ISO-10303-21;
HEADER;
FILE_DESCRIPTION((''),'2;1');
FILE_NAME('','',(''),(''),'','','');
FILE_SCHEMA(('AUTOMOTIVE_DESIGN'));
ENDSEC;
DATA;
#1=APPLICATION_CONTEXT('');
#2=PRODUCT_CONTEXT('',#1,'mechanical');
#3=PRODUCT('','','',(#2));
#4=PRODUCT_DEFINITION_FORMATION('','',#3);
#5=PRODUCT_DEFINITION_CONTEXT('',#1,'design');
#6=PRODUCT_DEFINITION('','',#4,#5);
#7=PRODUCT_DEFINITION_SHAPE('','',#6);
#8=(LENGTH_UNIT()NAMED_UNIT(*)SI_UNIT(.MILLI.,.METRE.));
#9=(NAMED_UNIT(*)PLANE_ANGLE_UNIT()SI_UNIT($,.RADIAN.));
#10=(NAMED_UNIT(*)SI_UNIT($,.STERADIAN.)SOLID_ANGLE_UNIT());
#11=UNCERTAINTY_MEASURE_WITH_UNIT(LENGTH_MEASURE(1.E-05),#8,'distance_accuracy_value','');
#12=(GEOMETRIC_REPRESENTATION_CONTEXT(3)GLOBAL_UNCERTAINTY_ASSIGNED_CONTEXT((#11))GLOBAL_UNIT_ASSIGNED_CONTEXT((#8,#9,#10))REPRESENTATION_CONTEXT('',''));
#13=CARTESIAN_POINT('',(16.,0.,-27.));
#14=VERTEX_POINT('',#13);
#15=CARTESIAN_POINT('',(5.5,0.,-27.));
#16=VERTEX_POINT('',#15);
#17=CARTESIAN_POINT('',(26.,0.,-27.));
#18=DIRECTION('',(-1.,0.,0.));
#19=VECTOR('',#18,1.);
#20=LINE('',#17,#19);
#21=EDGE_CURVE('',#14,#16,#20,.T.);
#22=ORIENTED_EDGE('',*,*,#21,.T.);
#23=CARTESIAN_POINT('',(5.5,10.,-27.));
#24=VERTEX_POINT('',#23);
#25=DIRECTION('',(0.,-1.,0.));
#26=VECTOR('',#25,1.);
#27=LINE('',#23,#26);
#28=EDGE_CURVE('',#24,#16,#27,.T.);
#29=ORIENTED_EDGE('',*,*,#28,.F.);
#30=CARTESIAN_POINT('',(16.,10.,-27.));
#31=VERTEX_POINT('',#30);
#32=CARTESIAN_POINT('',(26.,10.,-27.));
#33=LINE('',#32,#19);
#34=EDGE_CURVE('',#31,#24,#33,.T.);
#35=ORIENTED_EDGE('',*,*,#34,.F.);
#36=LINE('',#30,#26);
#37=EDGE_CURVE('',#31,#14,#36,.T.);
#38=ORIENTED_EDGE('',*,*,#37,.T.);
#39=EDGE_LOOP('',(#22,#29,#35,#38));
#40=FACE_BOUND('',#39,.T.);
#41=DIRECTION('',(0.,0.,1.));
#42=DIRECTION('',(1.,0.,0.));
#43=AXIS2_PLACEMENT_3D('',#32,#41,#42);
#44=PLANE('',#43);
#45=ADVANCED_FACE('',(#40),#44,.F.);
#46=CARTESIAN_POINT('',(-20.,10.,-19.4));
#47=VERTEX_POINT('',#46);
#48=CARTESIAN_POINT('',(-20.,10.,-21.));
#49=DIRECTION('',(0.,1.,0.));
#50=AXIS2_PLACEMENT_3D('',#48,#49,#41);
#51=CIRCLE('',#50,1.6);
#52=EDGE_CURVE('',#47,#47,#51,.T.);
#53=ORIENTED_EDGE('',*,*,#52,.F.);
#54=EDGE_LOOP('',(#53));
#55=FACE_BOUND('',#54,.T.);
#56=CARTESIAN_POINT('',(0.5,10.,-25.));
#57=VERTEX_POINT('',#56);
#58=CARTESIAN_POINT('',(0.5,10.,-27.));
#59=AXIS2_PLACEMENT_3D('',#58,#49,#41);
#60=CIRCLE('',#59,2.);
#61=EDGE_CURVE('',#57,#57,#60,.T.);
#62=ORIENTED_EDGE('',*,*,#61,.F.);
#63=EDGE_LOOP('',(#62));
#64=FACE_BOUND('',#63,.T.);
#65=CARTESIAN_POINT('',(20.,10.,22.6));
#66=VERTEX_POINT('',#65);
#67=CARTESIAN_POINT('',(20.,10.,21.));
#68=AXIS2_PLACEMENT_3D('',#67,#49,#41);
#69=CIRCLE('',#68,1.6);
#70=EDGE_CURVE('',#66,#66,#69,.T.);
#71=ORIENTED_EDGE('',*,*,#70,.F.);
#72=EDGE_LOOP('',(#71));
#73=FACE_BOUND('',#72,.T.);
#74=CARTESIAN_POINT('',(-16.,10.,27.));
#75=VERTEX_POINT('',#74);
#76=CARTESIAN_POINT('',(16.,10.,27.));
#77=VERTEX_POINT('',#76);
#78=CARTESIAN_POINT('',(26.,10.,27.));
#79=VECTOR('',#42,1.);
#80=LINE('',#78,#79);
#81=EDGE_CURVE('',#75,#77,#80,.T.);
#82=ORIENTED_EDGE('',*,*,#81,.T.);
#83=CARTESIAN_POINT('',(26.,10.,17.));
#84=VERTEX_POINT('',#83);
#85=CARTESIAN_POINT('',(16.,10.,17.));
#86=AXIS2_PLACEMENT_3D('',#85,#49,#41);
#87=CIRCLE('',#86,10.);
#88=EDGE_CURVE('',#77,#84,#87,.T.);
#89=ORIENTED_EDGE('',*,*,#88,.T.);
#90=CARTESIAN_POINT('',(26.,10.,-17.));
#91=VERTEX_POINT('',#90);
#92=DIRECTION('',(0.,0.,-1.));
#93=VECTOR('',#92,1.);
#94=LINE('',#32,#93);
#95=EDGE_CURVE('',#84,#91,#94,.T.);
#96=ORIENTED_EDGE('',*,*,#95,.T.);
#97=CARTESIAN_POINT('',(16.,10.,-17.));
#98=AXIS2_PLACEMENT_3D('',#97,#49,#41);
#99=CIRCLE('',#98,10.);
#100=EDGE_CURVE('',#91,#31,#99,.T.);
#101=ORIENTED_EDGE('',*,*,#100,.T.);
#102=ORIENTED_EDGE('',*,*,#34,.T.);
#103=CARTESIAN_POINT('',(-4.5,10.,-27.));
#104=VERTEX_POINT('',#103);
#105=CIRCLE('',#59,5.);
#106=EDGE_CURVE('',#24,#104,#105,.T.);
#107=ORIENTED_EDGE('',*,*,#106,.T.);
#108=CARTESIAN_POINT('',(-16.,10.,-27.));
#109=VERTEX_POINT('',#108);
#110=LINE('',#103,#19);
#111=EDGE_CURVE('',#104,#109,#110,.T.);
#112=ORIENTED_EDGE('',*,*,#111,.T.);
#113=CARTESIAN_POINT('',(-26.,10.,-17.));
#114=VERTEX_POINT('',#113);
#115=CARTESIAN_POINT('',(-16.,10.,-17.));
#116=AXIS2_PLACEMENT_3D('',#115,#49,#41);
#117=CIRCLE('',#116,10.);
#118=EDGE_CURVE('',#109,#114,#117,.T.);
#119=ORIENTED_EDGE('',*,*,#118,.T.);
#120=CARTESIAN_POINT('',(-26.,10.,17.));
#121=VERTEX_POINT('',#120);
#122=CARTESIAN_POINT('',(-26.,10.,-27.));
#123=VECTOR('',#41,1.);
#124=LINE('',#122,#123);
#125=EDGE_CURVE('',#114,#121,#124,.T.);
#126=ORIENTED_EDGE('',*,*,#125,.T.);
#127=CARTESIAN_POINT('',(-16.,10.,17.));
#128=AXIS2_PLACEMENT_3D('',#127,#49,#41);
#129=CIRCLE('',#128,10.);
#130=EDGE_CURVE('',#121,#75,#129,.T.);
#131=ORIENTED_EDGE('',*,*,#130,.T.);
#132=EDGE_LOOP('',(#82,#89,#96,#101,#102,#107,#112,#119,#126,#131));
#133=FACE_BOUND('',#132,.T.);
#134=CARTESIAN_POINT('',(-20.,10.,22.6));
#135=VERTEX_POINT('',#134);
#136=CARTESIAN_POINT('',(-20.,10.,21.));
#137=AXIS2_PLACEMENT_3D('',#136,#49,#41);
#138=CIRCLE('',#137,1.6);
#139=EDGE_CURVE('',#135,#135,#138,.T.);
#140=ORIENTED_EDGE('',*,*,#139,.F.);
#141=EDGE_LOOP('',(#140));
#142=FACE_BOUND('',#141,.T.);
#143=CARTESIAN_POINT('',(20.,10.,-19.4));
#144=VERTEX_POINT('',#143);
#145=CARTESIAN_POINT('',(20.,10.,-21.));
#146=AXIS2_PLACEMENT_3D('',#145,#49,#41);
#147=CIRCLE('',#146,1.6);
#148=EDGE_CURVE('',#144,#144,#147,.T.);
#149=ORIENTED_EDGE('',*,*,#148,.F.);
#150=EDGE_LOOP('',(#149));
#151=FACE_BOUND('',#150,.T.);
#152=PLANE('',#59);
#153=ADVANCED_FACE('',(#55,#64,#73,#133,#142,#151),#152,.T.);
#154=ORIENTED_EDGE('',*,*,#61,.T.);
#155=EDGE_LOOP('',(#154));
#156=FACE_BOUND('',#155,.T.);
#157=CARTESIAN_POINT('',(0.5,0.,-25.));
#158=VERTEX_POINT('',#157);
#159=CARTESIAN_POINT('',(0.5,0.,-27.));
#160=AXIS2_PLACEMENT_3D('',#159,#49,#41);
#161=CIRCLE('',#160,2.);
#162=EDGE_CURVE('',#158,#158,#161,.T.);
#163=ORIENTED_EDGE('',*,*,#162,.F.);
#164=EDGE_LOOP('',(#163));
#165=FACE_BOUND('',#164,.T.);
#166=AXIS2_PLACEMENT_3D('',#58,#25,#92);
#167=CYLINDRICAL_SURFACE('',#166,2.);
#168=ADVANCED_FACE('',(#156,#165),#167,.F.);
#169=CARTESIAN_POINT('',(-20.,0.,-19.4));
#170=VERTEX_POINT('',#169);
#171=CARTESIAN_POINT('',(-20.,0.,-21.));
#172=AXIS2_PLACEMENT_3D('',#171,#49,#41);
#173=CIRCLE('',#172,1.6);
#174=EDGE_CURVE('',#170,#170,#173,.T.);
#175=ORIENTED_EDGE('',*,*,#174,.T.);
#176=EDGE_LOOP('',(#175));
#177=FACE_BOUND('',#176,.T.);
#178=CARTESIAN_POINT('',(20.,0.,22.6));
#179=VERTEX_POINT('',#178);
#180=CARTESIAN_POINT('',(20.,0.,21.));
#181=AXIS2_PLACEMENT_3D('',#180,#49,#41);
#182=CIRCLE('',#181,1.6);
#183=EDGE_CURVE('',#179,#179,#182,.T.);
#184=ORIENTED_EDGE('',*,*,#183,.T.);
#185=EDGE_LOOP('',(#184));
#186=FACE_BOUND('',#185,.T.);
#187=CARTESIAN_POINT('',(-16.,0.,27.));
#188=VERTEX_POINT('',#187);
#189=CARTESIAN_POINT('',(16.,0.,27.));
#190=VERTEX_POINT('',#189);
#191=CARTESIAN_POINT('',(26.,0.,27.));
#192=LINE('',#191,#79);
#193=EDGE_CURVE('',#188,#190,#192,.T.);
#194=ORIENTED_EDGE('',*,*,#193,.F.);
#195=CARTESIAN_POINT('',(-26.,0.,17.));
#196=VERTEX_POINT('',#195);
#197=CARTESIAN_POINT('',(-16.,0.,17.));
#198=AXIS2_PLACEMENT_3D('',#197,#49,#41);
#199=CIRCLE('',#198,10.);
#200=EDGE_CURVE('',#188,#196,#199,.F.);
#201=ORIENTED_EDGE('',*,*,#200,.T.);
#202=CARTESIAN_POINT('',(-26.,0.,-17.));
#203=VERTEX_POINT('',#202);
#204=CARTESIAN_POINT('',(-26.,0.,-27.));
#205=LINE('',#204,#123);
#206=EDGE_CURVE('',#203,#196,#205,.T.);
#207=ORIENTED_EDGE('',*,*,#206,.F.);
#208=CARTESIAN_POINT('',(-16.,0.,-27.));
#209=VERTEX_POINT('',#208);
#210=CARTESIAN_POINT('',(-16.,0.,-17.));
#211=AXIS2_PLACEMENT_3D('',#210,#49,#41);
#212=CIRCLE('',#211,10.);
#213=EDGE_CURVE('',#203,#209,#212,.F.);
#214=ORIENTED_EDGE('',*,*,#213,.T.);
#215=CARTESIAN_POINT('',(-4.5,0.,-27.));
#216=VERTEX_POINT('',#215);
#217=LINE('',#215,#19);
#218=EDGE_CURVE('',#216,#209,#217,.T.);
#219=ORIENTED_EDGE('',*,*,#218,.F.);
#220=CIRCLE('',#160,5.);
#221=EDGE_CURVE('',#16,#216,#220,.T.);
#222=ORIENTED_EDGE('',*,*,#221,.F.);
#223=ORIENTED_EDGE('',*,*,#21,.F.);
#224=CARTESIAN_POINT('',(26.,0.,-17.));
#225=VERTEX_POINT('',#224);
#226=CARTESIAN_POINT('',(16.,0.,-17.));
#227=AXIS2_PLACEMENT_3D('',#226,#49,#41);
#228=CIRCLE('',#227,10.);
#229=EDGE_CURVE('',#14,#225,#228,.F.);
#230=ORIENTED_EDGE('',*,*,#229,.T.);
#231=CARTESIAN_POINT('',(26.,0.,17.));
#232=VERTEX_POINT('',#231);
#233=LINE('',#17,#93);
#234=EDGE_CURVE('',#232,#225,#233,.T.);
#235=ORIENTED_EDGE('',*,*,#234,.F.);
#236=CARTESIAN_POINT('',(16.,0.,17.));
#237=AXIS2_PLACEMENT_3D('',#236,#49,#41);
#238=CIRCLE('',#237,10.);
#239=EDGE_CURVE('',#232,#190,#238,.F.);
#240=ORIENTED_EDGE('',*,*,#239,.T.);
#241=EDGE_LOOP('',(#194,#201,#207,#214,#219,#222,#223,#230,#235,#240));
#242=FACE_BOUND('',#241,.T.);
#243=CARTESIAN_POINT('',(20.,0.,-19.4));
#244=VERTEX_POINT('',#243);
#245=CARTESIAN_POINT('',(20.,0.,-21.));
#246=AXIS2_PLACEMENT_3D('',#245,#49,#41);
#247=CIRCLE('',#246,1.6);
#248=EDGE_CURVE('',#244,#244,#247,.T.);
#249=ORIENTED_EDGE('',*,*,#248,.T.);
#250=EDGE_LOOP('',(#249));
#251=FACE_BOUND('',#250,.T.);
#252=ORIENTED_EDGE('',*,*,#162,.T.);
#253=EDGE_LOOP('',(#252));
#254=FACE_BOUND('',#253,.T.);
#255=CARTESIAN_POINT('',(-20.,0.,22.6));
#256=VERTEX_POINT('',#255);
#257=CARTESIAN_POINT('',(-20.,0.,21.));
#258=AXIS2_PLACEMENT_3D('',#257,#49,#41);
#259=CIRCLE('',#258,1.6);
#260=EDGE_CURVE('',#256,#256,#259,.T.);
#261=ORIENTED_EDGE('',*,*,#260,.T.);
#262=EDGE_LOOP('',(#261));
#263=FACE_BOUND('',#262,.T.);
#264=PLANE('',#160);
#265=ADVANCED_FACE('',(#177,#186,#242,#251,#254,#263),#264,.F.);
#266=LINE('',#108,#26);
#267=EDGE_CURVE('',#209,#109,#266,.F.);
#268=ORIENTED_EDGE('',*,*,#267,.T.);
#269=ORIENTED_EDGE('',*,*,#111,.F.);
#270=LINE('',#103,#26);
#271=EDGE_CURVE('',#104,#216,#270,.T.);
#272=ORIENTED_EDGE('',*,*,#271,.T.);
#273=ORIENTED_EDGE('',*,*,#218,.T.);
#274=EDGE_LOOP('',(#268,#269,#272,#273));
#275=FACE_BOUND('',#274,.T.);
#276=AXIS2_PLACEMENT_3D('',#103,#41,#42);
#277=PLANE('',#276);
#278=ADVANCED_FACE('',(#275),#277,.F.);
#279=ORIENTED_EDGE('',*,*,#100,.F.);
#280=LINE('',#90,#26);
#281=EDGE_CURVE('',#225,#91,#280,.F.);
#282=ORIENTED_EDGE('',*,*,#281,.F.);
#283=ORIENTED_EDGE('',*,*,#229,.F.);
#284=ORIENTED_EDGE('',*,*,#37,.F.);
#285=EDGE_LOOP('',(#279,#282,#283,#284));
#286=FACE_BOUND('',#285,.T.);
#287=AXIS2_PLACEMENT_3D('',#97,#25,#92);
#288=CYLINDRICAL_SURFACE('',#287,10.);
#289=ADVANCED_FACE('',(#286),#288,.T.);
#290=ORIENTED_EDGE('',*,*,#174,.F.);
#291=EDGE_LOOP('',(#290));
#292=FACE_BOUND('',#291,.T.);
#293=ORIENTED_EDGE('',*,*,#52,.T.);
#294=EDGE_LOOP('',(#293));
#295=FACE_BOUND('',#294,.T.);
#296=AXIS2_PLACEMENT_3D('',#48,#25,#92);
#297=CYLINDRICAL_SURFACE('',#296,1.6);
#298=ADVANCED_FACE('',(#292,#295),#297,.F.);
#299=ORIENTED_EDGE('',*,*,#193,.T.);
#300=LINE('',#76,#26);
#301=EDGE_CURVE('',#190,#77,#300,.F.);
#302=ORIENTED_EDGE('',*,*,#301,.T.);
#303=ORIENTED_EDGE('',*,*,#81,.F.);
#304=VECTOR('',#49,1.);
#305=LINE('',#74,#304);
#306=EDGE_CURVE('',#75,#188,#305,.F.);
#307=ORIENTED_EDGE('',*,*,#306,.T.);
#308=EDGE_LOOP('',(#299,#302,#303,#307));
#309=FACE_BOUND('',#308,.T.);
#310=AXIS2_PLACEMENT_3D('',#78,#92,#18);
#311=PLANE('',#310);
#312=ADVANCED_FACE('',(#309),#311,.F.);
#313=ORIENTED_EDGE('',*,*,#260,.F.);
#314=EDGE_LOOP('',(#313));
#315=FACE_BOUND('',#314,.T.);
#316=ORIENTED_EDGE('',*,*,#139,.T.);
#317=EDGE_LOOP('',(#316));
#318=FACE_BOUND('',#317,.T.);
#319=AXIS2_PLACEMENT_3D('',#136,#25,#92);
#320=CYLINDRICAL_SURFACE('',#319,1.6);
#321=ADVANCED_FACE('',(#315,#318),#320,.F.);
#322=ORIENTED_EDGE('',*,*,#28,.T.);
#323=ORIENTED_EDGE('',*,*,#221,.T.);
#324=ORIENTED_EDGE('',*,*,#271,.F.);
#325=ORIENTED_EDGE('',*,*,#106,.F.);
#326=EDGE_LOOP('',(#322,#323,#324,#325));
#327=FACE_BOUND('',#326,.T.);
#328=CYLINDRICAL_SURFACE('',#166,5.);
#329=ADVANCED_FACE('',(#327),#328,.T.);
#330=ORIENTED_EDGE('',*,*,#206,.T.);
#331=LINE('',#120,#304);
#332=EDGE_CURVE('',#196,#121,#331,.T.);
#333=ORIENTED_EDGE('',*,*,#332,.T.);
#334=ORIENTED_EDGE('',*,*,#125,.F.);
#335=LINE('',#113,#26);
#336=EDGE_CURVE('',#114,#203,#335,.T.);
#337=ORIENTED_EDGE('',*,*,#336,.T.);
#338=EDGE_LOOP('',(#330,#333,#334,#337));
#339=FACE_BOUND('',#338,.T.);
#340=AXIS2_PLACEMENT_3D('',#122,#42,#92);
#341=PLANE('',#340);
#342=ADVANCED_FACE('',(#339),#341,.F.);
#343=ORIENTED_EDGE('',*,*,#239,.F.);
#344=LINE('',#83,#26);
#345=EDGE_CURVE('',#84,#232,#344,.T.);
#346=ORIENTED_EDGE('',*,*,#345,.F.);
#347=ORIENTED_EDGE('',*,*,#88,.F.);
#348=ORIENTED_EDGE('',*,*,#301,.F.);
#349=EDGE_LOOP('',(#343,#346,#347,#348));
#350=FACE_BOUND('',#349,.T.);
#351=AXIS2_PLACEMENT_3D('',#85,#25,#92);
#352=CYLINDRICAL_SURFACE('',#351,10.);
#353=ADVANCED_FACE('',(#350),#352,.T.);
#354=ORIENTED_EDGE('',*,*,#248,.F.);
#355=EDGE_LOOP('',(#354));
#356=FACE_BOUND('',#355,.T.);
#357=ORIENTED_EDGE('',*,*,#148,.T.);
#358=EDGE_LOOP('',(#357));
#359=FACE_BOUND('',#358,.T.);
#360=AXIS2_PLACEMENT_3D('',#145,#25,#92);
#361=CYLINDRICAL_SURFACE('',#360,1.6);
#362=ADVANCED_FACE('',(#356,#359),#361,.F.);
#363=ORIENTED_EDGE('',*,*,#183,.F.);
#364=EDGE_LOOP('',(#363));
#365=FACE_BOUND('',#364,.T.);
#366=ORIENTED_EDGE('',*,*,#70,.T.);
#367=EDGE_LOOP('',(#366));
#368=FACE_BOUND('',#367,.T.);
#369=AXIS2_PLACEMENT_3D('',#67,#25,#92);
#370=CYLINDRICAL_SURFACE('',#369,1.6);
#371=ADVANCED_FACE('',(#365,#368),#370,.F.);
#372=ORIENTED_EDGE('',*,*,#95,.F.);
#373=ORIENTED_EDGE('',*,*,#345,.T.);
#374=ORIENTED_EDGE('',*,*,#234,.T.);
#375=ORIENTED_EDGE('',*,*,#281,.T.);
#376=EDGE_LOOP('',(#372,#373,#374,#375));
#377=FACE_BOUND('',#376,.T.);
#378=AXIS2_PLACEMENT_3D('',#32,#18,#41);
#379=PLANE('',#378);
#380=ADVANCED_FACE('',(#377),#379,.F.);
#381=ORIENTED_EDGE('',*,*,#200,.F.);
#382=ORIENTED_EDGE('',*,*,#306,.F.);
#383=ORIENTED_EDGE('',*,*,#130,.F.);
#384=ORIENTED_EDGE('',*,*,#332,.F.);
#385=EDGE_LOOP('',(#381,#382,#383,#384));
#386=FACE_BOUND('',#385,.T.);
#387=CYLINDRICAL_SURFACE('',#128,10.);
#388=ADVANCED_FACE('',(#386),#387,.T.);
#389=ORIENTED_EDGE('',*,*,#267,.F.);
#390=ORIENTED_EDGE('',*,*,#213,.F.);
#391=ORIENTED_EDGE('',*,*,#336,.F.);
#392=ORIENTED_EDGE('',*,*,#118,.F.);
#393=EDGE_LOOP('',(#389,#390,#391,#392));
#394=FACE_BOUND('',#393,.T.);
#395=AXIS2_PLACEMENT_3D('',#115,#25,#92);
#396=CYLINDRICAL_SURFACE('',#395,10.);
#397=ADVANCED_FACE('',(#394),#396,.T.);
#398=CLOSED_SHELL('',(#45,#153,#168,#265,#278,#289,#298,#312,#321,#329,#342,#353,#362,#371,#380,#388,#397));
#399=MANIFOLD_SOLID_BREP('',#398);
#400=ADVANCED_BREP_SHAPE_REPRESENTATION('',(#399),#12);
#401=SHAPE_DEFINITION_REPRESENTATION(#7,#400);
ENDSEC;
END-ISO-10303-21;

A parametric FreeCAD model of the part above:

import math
import FreeCAD as App
import Part
import Sketcher
from FreeCAD import Vector


def edges_at(feature, points):
    """Names of the edges that pass closest to the given points."""
    edges = feature.Shape.Edges
    near = lambda p: min(range(len(edges)), key=lambda i: edges[i].distToShape(Part.Vertex(*p))[0])
    return sorted({f"Edge{near(p) + 1}" for p in points})

doc = App.newDocument("Part")
body = doc.addObject("PartDesign::Body", "Body")

# Sketch on XZ plane
sketch1 = body.newObject("Sketcher::SketchObject", "Sketch")
sketch1.AttachmentSupport = (doc.getObject("XZ_Plane"), [""])
sketch1.MapMode = "FlatFace"
sketch1.addGeometry([
    Part.LineSegment(Vector(-4.5, -27, 0), Vector(-26, -27, 0)),  # 0
    Part.LineSegment(Vector(-26, -27, 0), Vector(-26, 27, 0)),  # 1
    Part.LineSegment(Vector(-26, 27, 0), Vector(26, 27, 0)),  # 2
    Part.LineSegment(Vector(26, 27, 0), Vector(26, -27, 0)),  # 3
    Part.LineSegment(Vector(26, -27, 0), Vector(5.5, -27, 0)),  # 4
    Part.ArcOfCircle(Part.Circle(Vector(0.5, -27, 0), Vector(0, 0, 1), 5), math.radians(180), math.radians(360)),  # 5
    Part.Circle(Vector(-20, 21, 0), Vector(0, 0, 1), 1.6),  # 6
    Part.Circle(Vector(20, 21, 0), Vector(0, 0, 1), 1.6),  # 7
    Part.Circle(Vector(-20, -21, 0), Vector(0, 0, 1), 1.6),  # 8
    Part.Circle(Vector(0.5, -27, 0), Vector(0, 0, 1), 2),  # 9
    Part.Circle(Vector(20, -21, 0), Vector(0, 0, 1), 1.6),  # 10
], False)
sketch1.addConstraint([
    Sketcher.Constraint("Coincident", 0, 2, 1, 1),
    Sketcher.Constraint("Coincident", 1, 2, 2, 1),
    Sketcher.Constraint("Coincident", 2, 2, 3, 1),
    Sketcher.Constraint("Coincident", 3, 2, 4, 1),
    Sketcher.Constraint("Coincident", 4, 2, 5, 2),
    Sketcher.Constraint("Coincident", 5, 1, 0, 1),
    Sketcher.Constraint("Horizontal", 0),
    Sketcher.Constraint("Vertical", 1),
    Sketcher.Constraint("Horizontal", 2),
    Sketcher.Constraint("Vertical", 3),
    Sketcher.Constraint("Horizontal", 4),
    Sketcher.Constraint("Coincident", 9, 3, 5, 3),
    Sketcher.Constraint("Equal", 6, 7),
    Sketcher.Constraint("Equal", 7, 8),
    Sketcher.Constraint("Equal", 8, 10),
    Sketcher.Constraint("Symmetric", 7, 3, 8, 3, -1, 1),
    Sketcher.Constraint("Symmetric", 6, 3, 10, 3, -1, 1),
    Sketcher.Constraint("Symmetric", 0, 2, 2, 2, -1, 1),
    Sketcher.Constraint("Symmetric", 6, 3, 7, 3, -2),
    Sketcher.Constraint("Horizontal", 9, 3, 0, 2),
    Sketcher.Constraint("Horizontal", 0, 2, 3, 2),
    Sketcher.Constraint("Diameter", 9, 4.0),
    Sketcher.Constraint("Radius", 5, 5.0),
    Sketcher.Constraint("Diameter", 6, 3.2),
    Sketcher.Constraint("DistanceX", 2, 1, 2, 2, 52.0),
    Sketcher.Constraint("DistanceY", 1, 1, 1, 2, 54.0),
    Sketcher.Constraint("DistanceX", 0, 2, 0, 1, 21.5),
    Sketcher.Constraint("DistanceX", 6, 3, -1, 1, 20.0),
    Sketcher.Constraint("DistanceY", -1, 1, 6, 3, 21.0),
])
pad1 = body.newObject("PartDesign::Pad", "Pad")
pad1.Profile = sketch1
pad1.Length = 10
pad1.Reversed = True
doc.recompute()

fillet = body.newObject("PartDesign::Fillet", "Fillet")
fillet.Base = (pad1, edges_at(pad1, [(-26, 5, -27)]))
fillet.Radius = 10
doc.recompute()

fillet2 = body.newObject("PartDesign::Fillet", "Fillet001")
fillet2.Base = (fillet, edges_at(fillet, [(26, 5, -27)]))
fillet2.Radius = 10
doc.recompute()

fillet3 = body.newObject("PartDesign::Fillet", "Fillet002")
fillet3.Base = (fillet2, edges_at(fillet2, [(-26, 5, 27)]))
fillet3.Radius = 10
doc.recompute()

fillet4 = body.newObject("PartDesign::Fillet", "Fillet003")
fillet4.Base = (fillet3, edges_at(fillet3, [(26, 5, 27)]))
fillet4.Radius = 10

doc.recompute()
